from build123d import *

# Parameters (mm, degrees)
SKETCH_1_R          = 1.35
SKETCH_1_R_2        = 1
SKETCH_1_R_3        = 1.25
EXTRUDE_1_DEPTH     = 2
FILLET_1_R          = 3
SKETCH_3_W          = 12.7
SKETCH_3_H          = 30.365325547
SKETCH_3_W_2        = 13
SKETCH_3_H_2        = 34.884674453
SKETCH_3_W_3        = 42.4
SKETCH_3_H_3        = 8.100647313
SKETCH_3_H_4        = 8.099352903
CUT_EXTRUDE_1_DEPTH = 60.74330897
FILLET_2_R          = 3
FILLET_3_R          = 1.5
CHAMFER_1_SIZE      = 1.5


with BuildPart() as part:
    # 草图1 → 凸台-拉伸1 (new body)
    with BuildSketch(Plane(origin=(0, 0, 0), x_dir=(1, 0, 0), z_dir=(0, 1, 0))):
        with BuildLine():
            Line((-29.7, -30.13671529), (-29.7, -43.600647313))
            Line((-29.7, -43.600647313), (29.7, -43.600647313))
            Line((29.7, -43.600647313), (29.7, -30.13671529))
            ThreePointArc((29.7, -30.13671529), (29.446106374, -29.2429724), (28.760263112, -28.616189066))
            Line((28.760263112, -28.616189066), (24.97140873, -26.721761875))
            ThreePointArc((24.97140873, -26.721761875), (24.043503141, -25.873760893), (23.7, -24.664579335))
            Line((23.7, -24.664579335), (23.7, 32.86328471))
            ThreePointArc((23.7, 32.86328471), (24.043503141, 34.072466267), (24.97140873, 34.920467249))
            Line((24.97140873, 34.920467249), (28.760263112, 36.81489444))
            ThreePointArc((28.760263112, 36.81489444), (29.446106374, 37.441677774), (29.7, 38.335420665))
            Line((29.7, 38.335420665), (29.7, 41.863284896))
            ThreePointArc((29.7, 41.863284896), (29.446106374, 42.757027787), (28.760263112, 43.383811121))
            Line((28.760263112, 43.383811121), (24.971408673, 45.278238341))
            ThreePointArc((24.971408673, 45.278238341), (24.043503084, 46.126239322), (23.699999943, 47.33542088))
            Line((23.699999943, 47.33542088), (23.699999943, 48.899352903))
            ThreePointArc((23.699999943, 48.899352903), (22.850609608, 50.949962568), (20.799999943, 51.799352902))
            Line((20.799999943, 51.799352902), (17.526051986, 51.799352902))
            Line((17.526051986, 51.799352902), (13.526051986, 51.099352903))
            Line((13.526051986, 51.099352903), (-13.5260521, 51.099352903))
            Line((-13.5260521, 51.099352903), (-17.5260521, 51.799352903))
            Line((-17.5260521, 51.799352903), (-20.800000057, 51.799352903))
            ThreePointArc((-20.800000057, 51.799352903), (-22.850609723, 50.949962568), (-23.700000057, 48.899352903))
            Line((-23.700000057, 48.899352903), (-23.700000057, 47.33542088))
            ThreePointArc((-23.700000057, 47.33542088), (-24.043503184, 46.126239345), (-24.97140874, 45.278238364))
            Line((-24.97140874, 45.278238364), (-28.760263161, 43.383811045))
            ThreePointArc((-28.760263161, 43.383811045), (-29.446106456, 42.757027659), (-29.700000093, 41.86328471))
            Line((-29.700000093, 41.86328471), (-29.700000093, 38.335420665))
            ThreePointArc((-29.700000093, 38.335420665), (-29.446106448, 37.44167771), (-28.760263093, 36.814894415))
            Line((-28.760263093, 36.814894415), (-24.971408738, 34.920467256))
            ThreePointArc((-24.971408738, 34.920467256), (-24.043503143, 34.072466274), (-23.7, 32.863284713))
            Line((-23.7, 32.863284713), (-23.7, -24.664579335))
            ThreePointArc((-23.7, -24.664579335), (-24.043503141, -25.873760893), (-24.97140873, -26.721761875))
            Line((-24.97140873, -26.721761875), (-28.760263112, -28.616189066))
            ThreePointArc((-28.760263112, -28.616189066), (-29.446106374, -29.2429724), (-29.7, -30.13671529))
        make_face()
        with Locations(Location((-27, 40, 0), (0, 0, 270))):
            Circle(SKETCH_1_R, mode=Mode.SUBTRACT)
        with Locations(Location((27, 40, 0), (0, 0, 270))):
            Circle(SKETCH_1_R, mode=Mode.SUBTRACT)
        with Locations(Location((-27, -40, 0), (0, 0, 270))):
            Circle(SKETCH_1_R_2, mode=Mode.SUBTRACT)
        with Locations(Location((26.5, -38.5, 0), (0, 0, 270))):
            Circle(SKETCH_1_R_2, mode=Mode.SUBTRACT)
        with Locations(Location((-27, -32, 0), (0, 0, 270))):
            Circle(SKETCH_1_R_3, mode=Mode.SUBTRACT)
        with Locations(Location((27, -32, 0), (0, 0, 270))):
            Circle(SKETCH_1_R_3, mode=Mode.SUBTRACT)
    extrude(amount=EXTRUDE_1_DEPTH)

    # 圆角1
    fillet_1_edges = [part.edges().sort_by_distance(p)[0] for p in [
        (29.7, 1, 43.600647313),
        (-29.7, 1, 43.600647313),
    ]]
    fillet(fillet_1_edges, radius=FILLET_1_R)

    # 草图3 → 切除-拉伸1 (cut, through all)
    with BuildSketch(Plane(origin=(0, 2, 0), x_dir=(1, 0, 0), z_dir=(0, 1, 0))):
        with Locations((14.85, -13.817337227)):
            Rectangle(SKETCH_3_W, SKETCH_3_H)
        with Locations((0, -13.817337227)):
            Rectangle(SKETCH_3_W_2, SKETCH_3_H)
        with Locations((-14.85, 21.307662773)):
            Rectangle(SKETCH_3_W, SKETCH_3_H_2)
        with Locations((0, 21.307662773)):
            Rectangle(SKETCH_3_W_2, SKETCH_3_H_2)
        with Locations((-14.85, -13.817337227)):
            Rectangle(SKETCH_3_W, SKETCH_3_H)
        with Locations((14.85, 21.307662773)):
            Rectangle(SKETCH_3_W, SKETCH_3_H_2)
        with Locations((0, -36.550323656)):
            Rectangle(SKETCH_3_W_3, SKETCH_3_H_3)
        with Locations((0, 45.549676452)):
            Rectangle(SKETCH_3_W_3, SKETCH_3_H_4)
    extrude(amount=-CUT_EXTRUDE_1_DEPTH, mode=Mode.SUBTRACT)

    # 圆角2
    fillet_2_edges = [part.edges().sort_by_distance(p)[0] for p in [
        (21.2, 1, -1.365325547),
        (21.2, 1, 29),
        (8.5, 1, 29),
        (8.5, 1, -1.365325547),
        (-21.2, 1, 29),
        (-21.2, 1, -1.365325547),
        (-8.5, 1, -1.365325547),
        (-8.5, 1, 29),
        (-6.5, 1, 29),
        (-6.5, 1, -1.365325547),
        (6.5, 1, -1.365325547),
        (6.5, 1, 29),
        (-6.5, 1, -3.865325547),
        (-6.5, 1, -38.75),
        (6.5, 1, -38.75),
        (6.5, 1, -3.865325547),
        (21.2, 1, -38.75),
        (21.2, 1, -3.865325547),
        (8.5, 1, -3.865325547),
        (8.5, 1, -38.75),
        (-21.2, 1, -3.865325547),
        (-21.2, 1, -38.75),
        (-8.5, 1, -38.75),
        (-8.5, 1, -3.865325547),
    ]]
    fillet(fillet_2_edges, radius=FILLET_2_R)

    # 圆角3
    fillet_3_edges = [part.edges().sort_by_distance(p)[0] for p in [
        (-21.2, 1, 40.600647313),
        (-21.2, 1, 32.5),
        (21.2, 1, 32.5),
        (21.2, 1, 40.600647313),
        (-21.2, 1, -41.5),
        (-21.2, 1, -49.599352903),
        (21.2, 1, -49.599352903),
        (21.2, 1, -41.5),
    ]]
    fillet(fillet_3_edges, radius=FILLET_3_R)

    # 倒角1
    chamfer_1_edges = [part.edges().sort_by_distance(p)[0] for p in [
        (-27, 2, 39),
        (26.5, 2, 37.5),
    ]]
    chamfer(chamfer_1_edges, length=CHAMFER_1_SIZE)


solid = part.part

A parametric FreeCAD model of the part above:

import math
import FreeCAD as App
import Part
import Sketcher

V = App.Vector


def edges_at(feature, points):
    """Names of the edges that pass closest to the given points."""
    edges = feature.Shape.Edges
    near = lambda p: min(range(len(edges)), key=lambda i: edges[i].distToShape(Part.Vertex(*p))[0])
    return sorted({f"Edge{near(p) + 1}" for p in points})

doc = App.newDocument("Part")
params = doc.addObject("Spreadsheet::Sheet", "Params")
for row, (alias, value) in enumerate([
    ("sketch1_diameter", "2 mm"),
    ("sketch1_diameter2", "2.5 mm"),
    ("sketch1_diameter3", "2.7 mm"),
    ("sketch1_radius", "1.7 mm"),
    ("sketch1_radius2", "2.3 mm"),
    ("pad1_length", "2 mm"),
    ("fillet_radius", "3 mm"),
    ("sketch2_width", "13 mm"),
    ("sketch2_width2", "12.7 mm"),
    ("sketch2_width3", "42.4 mm"),
    ("fillet2_radius", "3 mm"),
    ("fillet3_radius", "1.5 mm"),
    ("chamfer_size", "1.5 mm"),
], start=1):
    params.set(f"A{row}", alias)
    params.set(f"B{row}", "=" + value)
    params.setAlias(f"B{row}", alias)

body = doc.addObject("PartDesign::Body", "Body")

# Sketch on XZ plane
sketch1 = doc.addObject("Sketcher::SketchObject", "Sketch")
body.addObject(sketch1)
sketch1.AttachmentSupport = (doc.XZ_Plane, [""])
sketch1.MapMode = "FlatFace"
sketch1.addGeometry([
    Part.LineSegment(V(-29.7, 30.136715, 0), V(-29.7, 43.600647, 0)),  # 0
    Part.LineSegment(V(-29.7, 43.600647, 0), V(29.7, 43.600647, 0)),  # 1
    Part.LineSegment(V(29.7, 43.600647, 0), V(29.7, 30.136715, 0)),  # 2
    Part.ArcOfCircle(Part.Circle(V(28, 30.136715, 0), V(0, 0, 1), 1.7), math.radians(-63.434949), math.radians(0)),  # 3
    Part.LineSegment(V(28.760263, 28.616189, 0), V(24.971409, 26.721762, 0)),  # 4
    Part.ArcOfCircle(Part.Circle(V(26, 24.664579, 0), V(0, 0, 1), 2.3), math.radians(116.565051), math.radians(180)),  # 5
    Part.LineSegment(V(23.7, 24.664579, 0), V(23.7, -32.863285, 0)),  # 6
    Part.ArcOfCircle(Part.Circle(V(26, -32.863285, 0), V(0, 0, 1), 2.3), math.radians(-180), math.radians(-116.565051)),  # 7
    Part.LineSegment(V(24.971409, -34.920467, 0), V(28.760263, -36.814894, 0)),  # 8
    Part.ArcOfCircle(Part.Circle(V(28, -38.335421, 0), V(0, 0, 1), 1.7), math.radians(0), math.radians(63.434949)),  # 9
    Part.LineSegment(V(29.7, -38.335421, 0), V(29.7, -41.863285, 0)),  # 10
    Part.ArcOfCircle(Part.Circle(V(28, -41.863285, 0), V(0, 0, 1), 1.7), math.radians(-63.434949), math.radians(0)),  # 11
    Part.LineSegment(V(28.760263, -43.383811, 0), V(24.971409, -45.278238, 0)),  # 12
    Part.ArcOfCircle(Part.Circle(V(26, -47.335421, 0), V(0, 0, 1), 2.3), math.radians(116.565051), math.radians(180)),  # 13
    Part.LineSegment(V(23.7, -47.335421, 0), V(23.7, -48.899353, 0)),  # 14
    Part.ArcOfCircle(Part.Circle(V(20.8, -48.899353, 0), V(0, 0, 1), 2.9), math.radians(-90), math.radians(0)),  # 15
    Part.LineSegment(V(20.8, -51.799353, 0), V(17.526052, -51.799353, 0)),  # 16
    Part.LineSegment(V(17.526052, -51.799353, 0), V(13.526052, -51.099353, 0)),  # 17
    Part.LineSegment(V(13.526052, -51.099353, 0), V(-13.526052, -51.099353, 0)),  # 18
    Part.LineSegment(V(-13.526052, -51.099353, 0), V(-17.526052, -51.799353, 0)),  # 19
    Part.LineSegment(V(-17.526052, -51.799353, 0), V(-20.8, -51.799353, 0)),  # 20
    Part.ArcOfCircle(Part.Circle(V(-20.8, -48.899353, 0), V(0, 0, 1), 2.9), math.radians(180), math.radians(270)),  # 21
    Part.LineSegment(V(-23.7, -48.899353, 0), V(-23.7, -47.335421, 0)),  # 22
    Part.ArcOfCircle(Part.Circle(V(-26, -47.335421, 0), V(0, 0, 1), 2.3), math.radians(0), math.radians(63.434947)),  # 23
    Part.LineSegment(V(-24.971409, -45.278238, 0), V(-28.760263, -43.383811, 0)),  # 24
    Part.ArcOfCircle(Part.Circle(V(-28, -41.863285, 0), V(0, 0, 1), 1.7), math.radians(180), math.radians(243.434948)),  # 25
    Part.LineSegment(V(-29.7, -41.863285, 0), V(-29.7, -38.335421, 0)),  # 26
    Part.ArcOfCircle(Part.Circle(V(-28, -38.335421, 0), V(0, 0, 1), 1.7), math.radians(116.565043), math.radians(180.000003)),  # 27
    Part.LineSegment(V(-28.760263, -36.814894, 0), V(-24.971409, -34.920467, 0)),  # 28
    Part.ArcOfCircle(Part.Circle(V(-26, -32.863285, 0), V(0, 0, 1), 2.3), math.radians(-63.434949), math.radians(0)),  # 29
    Part.LineSegment(V(-23.7, -32.863285, 0), V(-23.7, 24.664579, 0)),  # 30
    Part.ArcOfCircle(Part.Circle(V(-26, 24.664579, 0), V(0, 0, 1), 2.3), math.radians(0), math.radians(63.434949)),  # 31
    Part.LineSegment(V(-24.971409, 26.721762, 0), V(-28.760263, 28.616189, 0)),  # 32
    Part.ArcOfCircle(Part.Circle(V(-28, 30.136715, 0), V(0, 0, 1), 1.7), math.radians(-180), math.radians(-116.565051)),  # 33
    Part.Circle(V(-27, 40, 0), V(0, 0, 1), 1),  # 34
    Part.Circle(V(-27, 32, 0), V(0, 0, 1), 1.25),  # 35
    Part.Circle(V(26.5, 38.5, 0), V(0, 0, 1), 1),  # 36
    Part.Circle(V(27, 32, 0), V(0, 0, 1), 1.25),  # 37
    Part.Circle(V(-27, -40, 0), V(0, 0, 1), 1.35),  # 38
    Part.Circle(V(27, -40, 0), V(0, 0, 1), 1.35),  # 39
], False)
sketch1.addConstraint([
    Sketcher.Constraint("Coincident", 0, 2, 1, 1),
    Sketcher.Constraint("Coincident", 1, 2, 2, 1),
    Sketcher.Constraint("Tangent", 2, 2, 3, 2),
    Sketcher.Constraint("Tangent", 3, 1, 4, 1),
    Sketcher.Constraint("Tangent", 4, 2, 5, 1),
    Sketcher.Constraint("Tangent", 5, 2, 6, 1),
    Sketcher.Constraint("Tangent", 6, 2, 7, 1),
    Sketcher.Constraint("Tangent", 7, 2, 8, 1),
    Sketcher.Constraint("Tangent", 8, 2, 9, 2),
    Sketcher.Constraint("Tangent", 9, 1, 10, 1),
    Sketcher.Constraint("Tangent", 10, 2, 11, 2),
    Sketcher.Constraint("Tangent", 11, 1, 12, 1),
    Sketcher.Constraint("Tangent", 12, 2, 13, 1),
    Sketcher.Constraint("Tangent", 13, 2, 14, 1),
    Sketcher.Constraint("Tangent", 14, 2, 15, 2),
    Sketcher.Constraint("Tangent", 15, 1, 16, 1),
    Sketcher.Constraint("Coincident", 16, 2, 17, 1),
    Sketcher.Constraint("Coincident", 17, 2, 18, 1),
    Sketcher.Constraint("Coincident", 18, 2, 19, 1),
    Sketcher.Constraint("Coincident", 19, 2, 20, 1),
    Sketcher.Constraint("Tangent", 20, 2, 21, 2),
    Sketcher.Constraint("Tangent", 21, 1, 22, 1),
    Sketcher.Constraint("Tangent", 22, 2, 23, 1),
    Sketcher.Constraint("Tangent", 23, 2, 24, 1),
    Sketcher.Constraint("Tangent", 24, 2, 25, 2),
    Sketcher.Constraint("Tangent", 25, 1, 26, 1),
    Sketcher.Constraint("Tangent", 26, 2, 27, 2),
    Sketcher.Constraint("Tangent", 27, 1, 28, 1),
    Sketcher.Constraint("Tangent", 28, 2, 29, 1),
    Sketcher.Constraint("Tangent", 29, 2, 30, 1),
    Sketcher.Constraint("Tangent", 30, 2, 31, 1),
    Sketcher.Constraint("Tangent", 31, 2, 32, 1),
    Sketcher.Constraint("Tangent", 32, 2, 33, 2),
    Sketcher.Constraint("Tangent", 33, 1, 0, 1),
    Sketcher.Constraint("Vertical", 0),
    Sketcher.Constraint("Horizontal", 1),
    Sketcher.Constraint("Vertical", 2),
    Sketcher.Constraint("Vertical", 6),
    Sketcher.Constraint("Vertical", 10),
    Sketcher.Constraint("Vertical", 14),
    Sketcher.Constraint("Horizontal", 16),
    Sketcher.Constraint("Horizontal", 18),
    Sketcher.Constraint("Horizontal", 20),
    Sketcher.Constraint("Vertical", 22),
    Sketcher.Constraint("Vertical", 26),
    Sketcher.Constraint("Vertical", 30),
    Sketcher.Constraint("Equal", 5, 7),
    Sketcher.Constraint("Equal", 3, 9),
    Sketcher.Constraint("Equal", 9, 11),
    Sketcher.Constraint("Equal", 7, 13),
    Sketcher.Constraint("Equal", 15, 21),
    Sketcher.Constraint("Equal", 13, 23),
    Sketcher.Constraint("Equal", 11, 25),
    Sketcher.Constraint("Equal", 25, 27),
    Sketcher.Constraint("Equal", 23, 29),
    Sketcher.Constraint("Equal", 29, 31),
    Sketcher.Constraint("Equal", 27, 33),
    Sketcher.Constraint("Equal", 34, 36),
    Sketcher.Constraint("Equal", 35, 37),
    Sketcher.Constraint("Equal", 38, 39),
    Sketcher.Constraint("Symmetric", 34, 3, 39, 3, -1, 1),
    Sketcher.Constraint("Symmetric", 15, 3, 21, 3, -2),
    Sketcher.Constraint("Symmetric", 11, 3, 25, 3, -2),
    Sketcher.Constraint("Symmetric", 7, 3, 29, 3, -2),
    Sketcher.Constraint("Symmetric", 3, 3, 33, 3, -2),
    Sketcher.Constraint("Symmetric", 35, 3, 37, 3, -2),
    Sketcher.Constraint("Symmetric", 38, 3, 39, 3, -2),
    Sketcher.Constraint("Parallel", 4, 12),
    Sketcher.Constraint("Parallel", 8, 24),
    Sketcher.Constraint("Parallel", 12, 28),
    Sketcher.Constraint("Parallel", 24, 32),
    Sketcher.Constraint("Horizontal", 13, 3, 23, 3),
    Sketcher.Constraint("Vertical", 3, 3, 9, 3),
    Sketcher.Constraint("Vertical", 7, 3, 13, 3),
    Sketcher.Constraint("Vertical", 34, 3, 35, 3),
    Sketcher.Constraint("Equal", 16, 20),
    Sketcher.Constraint("Equal", 17, 19),
    Sketcher.Constraint("Diameter", 34, 2.0),
    Sketcher.Constraint("Diameter", 35, 2.5),
    Sketcher.Constraint("Diameter", 38, 2.7),
    Sketcher.Constraint("Radius", 3, 1.7),
    Sketcher.Constraint("Radius", 5, 2.3),
    Sketcher.Constraint("Radius", 15, 2.9),
    Sketcher.Constraint("DistanceX", 1, 1, 1, 2, 59.4),
    Sketcher.Constraint("DistanceX", -1, 1, 5, 3, 26.0),
    Sketcher.Constraint("DistanceX", 34, 3, -1, 1, 27.0),
    Sketcher.Constraint("DistanceY", -1, 1, 34, 3, 40.0),
    Sketcher.Constraint("DistanceY", -1, 1, 35, 3, 32.0),
    Sketcher.Constraint("DistanceY", 7, 3, 3, 3, 63.0),
    Sketcher.Constraint("DistanceY", 11, 3, 7, 3, 9.0),
    Sketcher.Constraint("DistanceX", 17, 2, 16, 2, 4.0),
    Sketcher.Constraint("DistanceX", -1, 1, 36, 3, 26.5),
    Sketcher.Constraint("DistanceY", -1, 1, 36, 3, 38.5),
    Sketcher.Constraint("DistanceY", 16, 2, 17, 2, 0.7),
    Sketcher.Constraint("Distance", 12, 4.236068),
    Sketcher.Constraint("DistanceX", 16, 2, 16, 1, 3.273948),
    Sketcher.Constraint("DistanceY", 0, 1, 0, 2, 13.463932),
    Sketcher.Constraint("DistanceY", 14, 2, 14, 1, 1.563932),
    Sketcher.Constraint("DistanceY", -1, 1, 5, 3, 24.664579),
])
sketch1.setExpression("Constraints[77]", "Params.sketch1_diameter")
sketch1.setExpression("Constraints[78]", "Params.sketch1_diameter2")
sketch1.setExpression("Constraints[79]", "Params.sketch1_diameter3")
sketch1.setExpression("Constraints[80]", "Params.sketch1_radius")
sketch1.setExpression("Constraints[81]", "Params.sketch1_radius2")
pad1 = doc.addObject("PartDesign::Pad", "Pad")
body.addObject(pad1)
pad1.Profile = sketch1
pad1.setExpression("Length", "Params.pad1_length")
pad1.Reversed = True
doc.recompute()

fillet = doc.addObject("PartDesign::Fillet", "Fillet")
body.addObject(fillet)
fillet.Base = (pad1, edges_at(pad1, [(29.7, 1, 43.601), (-29.7, 1, 43.601)]))
fillet.setExpression("Radius", "Params.fillet_radius")

# Sketch on XZ plane
sketch2 = doc.addObject("Sketcher::SketchObject", "Sketch001")
body.addObject(sketch2)
sketch2.AttachmentSupport = (doc.XZ_Plane, [""])
sketch2.MapMode = "FlatFace"
sketch2.AttachmentOffset = App.Placement(V(0, 0, -2), App.Rotation())
sketch2.addGeometry([
    Part.LineSegment(V(8.5, -1.365326, 0), V(8.5, 29, 0)),  # 0
    Part.LineSegment(V(8.5, 29, 0), V(21.2, 29, 0)),  # 1
    Part.LineSegment(V(21.2, 29, 0), V(21.2, -1.365326, 0)),  # 2
    Part.LineSegment(V(21.2, -1.365326, 0), V(8.5, -1.365326, 0)),  # 3
    Part.LineSegment(V(-6.5, -1.365326, 0), V(-6.5, 29, 0)),  # 4
    Part.LineSegment(V(-6.5, 29, 0), V(6.5, 29, 0)),  # 5
    Part.LineSegment(V(6.5, 29, 0), V(6.5, -1.365326, 0)),  # 6
    Part.LineSegment(V(6.5, -1.365326, 0), V(-6.5, -1.365326, 0)),  # 7
    Part.LineSegment(V(-21.2, -38.75, 0), V(-21.2, -3.865326, 0)),  # 8
    Part.LineSegment(V(-21.2, -3.865326, 0), V(-8.5, -3.865326, 0)),  # 9
    Part.LineSegment(V(-8.5, -3.865326, 0), V(-8.5, -38.75, 0)),  # 10
    Part.LineSegment(V(-8.5, -38.75, 0), V(-21.2, -38.75, 0)),  # 11
    Part.LineSegment(V(-6.5, -38.75, 0), V(-6.5, -3.865326, 0)),  # 12
    Part.LineSegment(V(-6.5, -3.865326, 0), V(6.5, -3.865326, 0)),  # 13
    Part.LineSegment(V(6.5, -3.865326, 0), V(6.5, -38.75, 0)),  # 14
    Part.LineSegment(V(6.5, -38.75, 0), V(-6.5, -38.75, 0)),  # 15
    Part.LineSegment(V(-21.2, -1.365326, 0), V(-21.2, 29, 0)),  # 16
    Part.LineSegment(V(-21.2, 29, 0), V(-8.5, 29, 0)),  # 17
    Part.LineSegment(V(-8.5, 29, 0), V(-8.5, -1.365326, 0)),  # 18
    Part.LineSegment(V(-8.5, -1.365326, 0), V(-21.2, -1.365326, 0)),  # 19
    Part.LineSegment(V(8.5, -38.75, 0), V(8.5, -3.865326, 0)),  # 20
    Part.LineSegment(V(8.5, -3.865326, 0), V(21.2, -3.865326, 0)),  # 21
    Part.LineSegment(V(21.2, -3.865326, 0), V(21.2, -38.75, 0)),  # 22
    Part.LineSegment(V(21.2, -38.75, 0), V(8.5, -38.75, 0)),  # 23
    Part.LineSegment(V(-21.2, 32.5, 0), V(-21.2, 40.600647, 0)),  # 24
    Part.LineSegment(V(-21.2, 40.600647, 0), V(21.2, 40.600647, 0)),  # 25
    Part.LineSegment(V(21.2, 40.600647, 0), V(21.2, 32.5, 0)),  # 26
    Part.LineSegment(V(21.2, 32.5, 0), V(-21.2, 32.5, 0)),  # 27
    Part.LineSegment(V(-21.2, -49.599353, 0), V(-21.2, -41.5, 0)),  # 28
    Part.LineSegment(V(-21.2, -41.5, 0), V(21.2, -41.5, 0)),  # 29
    Part.LineSegment(V(21.2, -41.5, 0), V(21.2, -49.599353, 0)),  # 30
    Part.LineSegment(V(21.2, -49.599353, 0), V(-21.2, -49.599353, 0)),  # 31
], False)
sketch2.addConstraint([
    Sketcher.Constraint("Coincident", 0, 2, 1, 1),
    Sketcher.Constraint("Coincident", 1, 2, 2, 1),
    Sketcher.Constraint("Coincident", 2, 2, 3, 1),
    Sketcher.Constraint("Coincident", 3, 2, 0, 1),
    Sketcher.Constraint("Coincident", 4, 2, 5, 1),
    Sketcher.Constraint("Coincident", 5, 2, 6, 1),
    Sketcher.Constraint("Coincident", 6, 2, 7, 1),
    Sketcher.Constraint("Coincident", 7, 2, 4, 1),
    Sketcher.Constraint("Coincident", 8, 2, 9, 1),
    Sketcher.Constraint("Coincident", 9, 2, 10, 1),
    Sketcher.Constraint("Coincident", 10, 2, 11, 1),
    Sketcher.Constraint("Coincident", 11, 2, 8, 1),
    Sketcher.Constraint("Coincident", 12, 2, 13, 1),
    Sketcher.Constraint("Coincident", 13, 2, 14, 1),
    Sketcher.Constraint("Coincident", 14, 2, 15, 1),
    Sketcher.Constraint("Coincident", 15, 2, 12, 1),
    Sketcher.Constraint("Coincident", 16, 2, 17, 1),
    Sketcher.Constraint("Coincident", 17, 2, 18, 1),
    Sketcher.Constraint("Coincident", 18, 2, 19, 1),
    Sketcher.Constraint("Coincident", 19, 2, 16, 1),
    Sketcher.Constraint("Coincident", 20, 2, 21, 1),
    Sketcher.Constraint("Coincident", 21, 2, 22, 1),
    Sketcher.Constraint("Coincident", 22, 2, 23, 1),
    Sketcher.Constraint("Coincident", 23, 2, 20, 1),
    Sketcher.Constraint("Coincident", 24, 2, 25, 1),
    Sketcher.Constraint("Coincident", 25, 2, 26, 1),
    Sketcher.Constraint("Coincident", 26, 2, 27, 1),
    Sketcher.Constraint("Coincident", 27, 2, 24, 1),
    Sketcher.Constraint("Coincident", 28, 2, 29, 1),
    Sketcher.Constraint("Coincident", 29, 2, 30, 1),
    Sketcher.Constraint("Coincident", 30, 2, 31, 1),
    Sketcher.Constraint("Coincident", 31, 2, 28, 1),
    Sketcher.Constraint("Vertical", 0),
    Sketcher.Constraint("Horizontal", 1),
    Sketcher.Constraint("Vertical", 2),
    Sketcher.Constraint("Horizontal", 3),
    Sketcher.Constraint("Vertical", 4),
    Sketcher.Constraint("Horizontal", 5),
    Sketcher.Constraint("Vertical", 6),
    Sketcher.Constraint("Horizontal", 7),
    Sketcher.Constraint("Vertical", 8),
    Sketcher.Constraint("Horizontal", 9),
    Sketcher.Constraint("Vertical", 10),
    Sketcher.Constraint("Horizontal", 11),
    Sketcher.Constraint("Vertical", 12),
    Sketcher.Constraint("Horizontal", 13),
    Sketcher.Constraint("Vertical", 14),
    Sketcher.Constraint("Horizontal", 15),
    Sketcher.Constraint("Vertical", 16),
    Sketcher.Constraint("Horizontal", 17),
    Sketcher.Constraint("Vertical", 18),
    Sketcher.Constraint("Horizontal", 19),
    Sketcher.Constraint("Vertical", 20),
    Sketcher.Constraint("Horizontal", 21),
    Sketcher.Constraint("Vertical", 22),
    Sketcher.Constraint("Horizontal", 23),
    Sketcher.Constraint("Vertical", 24),
    Sketcher.Constraint("Horizontal", 25),
    Sketcher.Constraint("Vertical", 26),
    Sketcher.Constraint("Horizontal", 27),
    Sketcher.Constraint("Vertical", 28),
    Sketcher.Constraint("Horizontal", 29),
    Sketcher.Constraint("Vertical", 30),
    Sketcher.Constraint("Horizontal", 31),
    Sketcher.Constraint("Symmetric", 1, 2, 16, 2, -2),
    Sketcher.Constraint("Symmetric", 3, 2, 18, 2, -2),
    Sketcher.Constraint("Symmetric", 9, 2, 20, 2, -2),
    Sketcher.Constraint("Symmetric", 11, 2, 22, 2, -2),
    Sketcher.Constraint("Horizontal", 1, 2, 4, 2),
    Sketcher.Constraint("Horizontal", 3, 2, 6, 2),
    Sketcher.Constraint("Horizontal", 9, 2, 12, 2),
    Sketcher.Constraint("Horizontal", 11, 2, 14, 2),
    Sketcher.Constraint("Vertical", 7, 2, 12, 2),
    Sketcher.Constraint("Vertical", 6, 2, 13, 2),
    Sketcher.Constraint("Vertical", 11, 2, 16, 2),
    Sketcher.Constraint("Vertical", 10, 2, 17, 2),
    Sketcher.Constraint("Vertical", 19, 2, 24, 2),
    Sketcher.Constraint("Vertical", 22, 2, 25, 2),
    Sketcher.Constraint("Vertical", 27, 2, 28, 2),
    Sketcher.Constraint("Vertical", 26, 2, 29, 2),
    Sketcher.Constraint("DistanceX", 5, 1, 5, 2, 13.0),
    Sketcher.Constraint("DistanceX", 1, 1, 1, 2, 12.7),
    Sketcher.Constraint("DistanceX", 25, 1, 25, 2, 42.4),
    Sketcher.Constraint("DistanceY", -1, 1, 0, 2, 29.0),
    Sketcher.Constraint("DistanceX", 4, 2, 0, 2, 15.0),
    Sketcher.Constraint("DistanceY", -1, 1, 26, 2, 32.5),
    Sketcher.Constraint("DistanceY", 28, 2, -1, 1, 41.5),
    Sketcher.Constraint("DistanceY", 8, 2, 7, 2, 2.5),
    Sketcher.Constraint("DistanceY", 10, 2, -1, 1, 38.75),
    Sketcher.Constraint("DistanceY", 0, 1, 0, 2, 30.365326),
    Sketcher.Constraint("DistanceY", 24, 1, 24, 2, 8.100647),
    Sketcher.Constraint("DistanceY", 28, 1, 28, 2, 8.099353),
])
sketch2.setExpression("Constraints[80]", "Params.sketch2_width")
sketch2.setExpression("Constraints[81]", "Params.sketch2_width2")
sketch2.setExpression("Constraints[82]", "Params.sketch2_width3")
pocket1 = doc.addObject("PartDesign::Pocket", "Pocket")
body.addObject(pocket1)
pocket1.Profile = sketch2
pocket1.Type = "ThroughAll"
pocket1.Reversed = True
doc.recompute()

fillet2 = doc.addObject("PartDesign::Fillet", "Fillet001")
body.addObject(fillet2)
fillet2.Base = (pocket1, edges_at(pocket1, [
    (21.2, 1, -1.365),
    (21.2, 1, 29),
    (8.5, 1, 29),
    (8.5, 1, -1.365),
    (-21.2, 1, 29),
    (-21.2, 1, -1.365),
    (-8.5, 1, -1.365),
    (-8.5, 1, 29),
    (-6.5, 1, 29),
    (-6.5, 1, -1.365),
    (6.5, 1, -1.365),
    (6.5, 1, 29),
    (-6.5, 1, -3.865),
    (-6.5, 1, -38.75),
    (6.5, 1, -38.75),
    (6.5, 1, -3.865),
    (21.2, 1, -38.75),
    (21.2, 1, -3.865),
    (8.5, 1, -3.865),
    (8.5, 1, -38.75),
    (-21.2, 1, -3.865),
    (-21.2, 1, -38.75),
    (-8.5, 1, -38.75),
    (-8.5, 1, -3.865),
]))
fillet2.setExpression("Radius", "Params.fillet2_radius")
doc.recompute()

fillet3 = doc.addObject("PartDesign::Fillet", "Fillet002")
body.addObject(fillet3)
fillet3.Base = (fillet2, edges_at(fillet2, [
    (-21.2, 1, 40.601),
    (-21.2, 1, 32.5),
    (21.2, 1, 32.5),
    (21.2, 1, 40.601),
    (-21.2, 1, -41.5),
    (-21.2, 1, -49.599),
    (21.2, 1, -49.599),
    (21.2, 1, -41.5),
]))
fillet3.setExpression("Radius", "Params.fillet3_radius")
doc.recompute()

chamfer = doc.addObject("PartDesign::Chamfer", "Chamfer")
body.addObject(chamfer)
chamfer.Base = (fillet3, edges_at(fillet3, [(-27, 2, 39), (26.5, 2, 37.5)]))
chamfer.setExpression("Size", "Params.chamfer_size")

doc.recompute()
